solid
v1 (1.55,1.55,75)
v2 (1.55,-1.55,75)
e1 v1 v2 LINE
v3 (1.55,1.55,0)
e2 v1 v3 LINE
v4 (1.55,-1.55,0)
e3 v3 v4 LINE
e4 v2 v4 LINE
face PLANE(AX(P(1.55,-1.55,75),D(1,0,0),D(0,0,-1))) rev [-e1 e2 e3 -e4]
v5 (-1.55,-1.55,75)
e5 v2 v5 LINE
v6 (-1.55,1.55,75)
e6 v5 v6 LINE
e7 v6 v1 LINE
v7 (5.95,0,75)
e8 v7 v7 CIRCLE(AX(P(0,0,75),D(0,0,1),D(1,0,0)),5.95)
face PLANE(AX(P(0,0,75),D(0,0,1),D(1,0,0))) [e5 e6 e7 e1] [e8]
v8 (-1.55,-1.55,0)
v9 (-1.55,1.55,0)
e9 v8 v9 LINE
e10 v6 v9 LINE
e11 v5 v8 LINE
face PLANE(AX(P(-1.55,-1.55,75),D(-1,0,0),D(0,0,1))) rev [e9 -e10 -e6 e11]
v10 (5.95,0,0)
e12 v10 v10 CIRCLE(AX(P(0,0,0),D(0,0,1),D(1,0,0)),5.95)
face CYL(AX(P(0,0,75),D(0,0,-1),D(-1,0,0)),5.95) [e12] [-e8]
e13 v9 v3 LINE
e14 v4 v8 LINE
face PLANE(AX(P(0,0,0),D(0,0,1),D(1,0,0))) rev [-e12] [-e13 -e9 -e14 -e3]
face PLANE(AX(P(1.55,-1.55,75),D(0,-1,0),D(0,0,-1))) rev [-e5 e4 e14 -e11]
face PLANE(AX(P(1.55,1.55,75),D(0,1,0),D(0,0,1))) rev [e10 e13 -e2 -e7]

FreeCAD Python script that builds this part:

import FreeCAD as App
import Part
import Sketcher

V = App.Vector


def add_polygon(sketch, points):
    """Adds a closed chain of lines whose ends are joined by coincident constraints."""
    first, n = sketch.GeometryCount, len(points)
    for a, b in zip(points, points[1:] + points[:1]):
        sketch.addGeometry(Part.LineSegment(App.Vector(*a, 0), App.Vector(*b, 0)), False)
    for i in range(n):
        sketch.addConstraint(Sketcher.Constraint("Coincident", first + i, 2, first + (i + 1) % n, 1))

doc = App.newDocument("Part")
body = doc.addObject("PartDesign::Body", "Body")

sketch1 = doc.addObject("Sketcher::SketchObject", "Sketch")
body.addObject(sketch1)
sketch1.AttachmentSupport = (doc.XY_Plane, [""])
sketch1.MapMode = "FlatFace"
sketch1.addGeometry(Part.Circle(V(0, 0, 0), V(0, 0, 1), 6), False)
sketch1.addConstraint([
    Sketcher.Constraint("Coincident", 0, 3, -1, 1),
    Sketcher.Constraint("Diameter", 0, 11.9),
])
pad1 = doc.addObject("PartDesign::Pad", "Pad")
body.addObject(pad1)
pad1.Profile = sketch1
pad1.Length = 75

sketch2 = doc.addObject("Sketcher::SketchObject", "Sketch001")
body.addObject(sketch2)
sketch2.AttachmentSupport = (doc.XY_Plane, [""])
sketch2.MapMode = "FlatFace"
add_polygon(sketch2, [(1.6, 1.6), (1.6, -1.6), (-1.6, -1.6), (-1.6, 1.6)])
sketch2.addConstraint([
    Sketcher.Constraint("Vertical", 0),
    Sketcher.Constraint("Horizontal", 1),
    Sketcher.Constraint("Vertical", 2),
    Sketcher.Constraint("Horizontal", 3),
    Sketcher.Constraint("Symmetric", 0, 2, 2, 2, -1, 1),
    Sketcher.Constraint("Equal", 3, 0),
    Sketcher.Constraint("DistanceX", 1, 2, 1, 1, 3.1),
])
pocket1 = doc.addObject("PartDesign::Pocket", "Pocket")
body.addObject(pocket1)
pocket1.Profile = sketch2
pocket1.Type = "ThroughAll"
pocket1.Reversed = True

doc.recompute()
